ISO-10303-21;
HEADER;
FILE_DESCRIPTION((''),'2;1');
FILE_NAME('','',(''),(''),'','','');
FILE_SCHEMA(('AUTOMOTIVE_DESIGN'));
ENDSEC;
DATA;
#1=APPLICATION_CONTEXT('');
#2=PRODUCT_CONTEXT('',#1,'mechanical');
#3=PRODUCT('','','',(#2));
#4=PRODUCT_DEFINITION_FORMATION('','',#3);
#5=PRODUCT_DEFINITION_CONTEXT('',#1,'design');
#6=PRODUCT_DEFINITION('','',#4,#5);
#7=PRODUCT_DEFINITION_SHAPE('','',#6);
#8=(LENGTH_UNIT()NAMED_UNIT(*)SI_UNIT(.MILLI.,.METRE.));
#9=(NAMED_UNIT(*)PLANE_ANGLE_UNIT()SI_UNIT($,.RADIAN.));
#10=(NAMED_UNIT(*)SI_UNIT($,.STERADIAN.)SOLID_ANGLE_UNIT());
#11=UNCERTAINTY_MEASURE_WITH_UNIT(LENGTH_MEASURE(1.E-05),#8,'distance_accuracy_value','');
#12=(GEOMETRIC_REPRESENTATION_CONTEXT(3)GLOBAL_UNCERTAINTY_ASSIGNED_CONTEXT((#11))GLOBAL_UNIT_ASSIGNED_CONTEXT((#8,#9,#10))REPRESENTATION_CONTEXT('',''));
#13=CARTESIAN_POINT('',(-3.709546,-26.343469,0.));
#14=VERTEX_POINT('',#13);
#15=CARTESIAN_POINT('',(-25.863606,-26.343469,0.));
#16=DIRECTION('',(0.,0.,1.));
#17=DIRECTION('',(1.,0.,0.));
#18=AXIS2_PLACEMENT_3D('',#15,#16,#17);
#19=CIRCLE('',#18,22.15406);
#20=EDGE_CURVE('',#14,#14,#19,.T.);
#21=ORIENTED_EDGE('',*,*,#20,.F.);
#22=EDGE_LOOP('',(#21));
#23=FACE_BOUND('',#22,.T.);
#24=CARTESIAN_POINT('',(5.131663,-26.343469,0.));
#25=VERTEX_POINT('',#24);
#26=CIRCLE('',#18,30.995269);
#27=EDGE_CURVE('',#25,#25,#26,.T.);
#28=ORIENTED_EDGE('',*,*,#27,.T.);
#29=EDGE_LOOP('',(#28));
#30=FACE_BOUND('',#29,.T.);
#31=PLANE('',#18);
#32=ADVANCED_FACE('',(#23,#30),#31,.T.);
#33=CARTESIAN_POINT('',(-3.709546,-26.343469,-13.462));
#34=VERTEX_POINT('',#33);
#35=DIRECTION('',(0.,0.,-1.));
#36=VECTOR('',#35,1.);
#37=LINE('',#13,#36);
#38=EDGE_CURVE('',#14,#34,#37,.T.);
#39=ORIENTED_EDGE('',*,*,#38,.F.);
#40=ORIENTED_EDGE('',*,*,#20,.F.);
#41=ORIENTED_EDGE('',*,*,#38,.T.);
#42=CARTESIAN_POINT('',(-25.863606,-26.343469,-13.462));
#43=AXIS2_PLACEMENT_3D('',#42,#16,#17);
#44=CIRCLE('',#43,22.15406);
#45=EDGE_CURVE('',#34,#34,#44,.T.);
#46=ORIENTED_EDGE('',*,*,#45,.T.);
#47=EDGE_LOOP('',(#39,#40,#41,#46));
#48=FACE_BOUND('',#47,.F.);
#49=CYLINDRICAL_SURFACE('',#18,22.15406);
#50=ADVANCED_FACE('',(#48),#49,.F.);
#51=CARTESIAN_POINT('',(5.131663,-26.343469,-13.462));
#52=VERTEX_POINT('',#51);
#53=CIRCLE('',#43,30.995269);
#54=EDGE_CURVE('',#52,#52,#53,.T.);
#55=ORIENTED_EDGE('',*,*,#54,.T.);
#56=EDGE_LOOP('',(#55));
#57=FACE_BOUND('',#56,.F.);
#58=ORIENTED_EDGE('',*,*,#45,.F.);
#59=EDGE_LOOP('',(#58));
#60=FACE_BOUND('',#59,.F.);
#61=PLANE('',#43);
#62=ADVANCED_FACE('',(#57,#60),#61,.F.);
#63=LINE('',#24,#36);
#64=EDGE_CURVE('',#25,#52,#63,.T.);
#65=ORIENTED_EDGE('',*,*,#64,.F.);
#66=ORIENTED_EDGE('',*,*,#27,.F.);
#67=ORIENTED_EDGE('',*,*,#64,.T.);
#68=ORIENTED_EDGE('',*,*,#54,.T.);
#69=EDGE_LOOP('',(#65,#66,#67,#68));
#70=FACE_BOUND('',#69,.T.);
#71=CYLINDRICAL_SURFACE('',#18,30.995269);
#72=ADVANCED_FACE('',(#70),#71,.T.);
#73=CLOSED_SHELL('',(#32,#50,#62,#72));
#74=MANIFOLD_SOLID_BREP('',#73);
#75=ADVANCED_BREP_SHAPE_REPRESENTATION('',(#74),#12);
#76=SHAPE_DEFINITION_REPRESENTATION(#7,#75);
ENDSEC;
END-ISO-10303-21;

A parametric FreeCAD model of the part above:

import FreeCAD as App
import Part
import Sketcher

V = App.Vector
Q = App.Units.Quantity

doc = App.newDocument("Part")
body = doc.addObject("PartDesign::Body", "Body")

sketch1 = body.newObject("Sketcher::SketchObject", "Sketch")
sketch1.AttachmentSupport = (doc.getObject("XY_Plane"), [""])
sketch1.MapMode = "FlatFace"
sketch1.addGeometry([
    Part.Circle(V(-26, -26, 0), V(0, 0, 1), 31),
    Part.Circle(V(-26, -26, 0), V(0, 0, 1), 22),
], False)
sketch1.addConstraint([
    Sketcher.Constraint("Coincident", 1, 3, 0, 3),
    Sketcher.Constraint("Diameter", 1, Q("44.30812 mm")),
    Sketcher.Constraint("Diameter", 0, Q("61.990538 mm")),
    Sketcher.Constraint("DistanceY", 0, 3, -1, 1, Q("26.343469 mm")),
    Sketcher.Constraint("DistanceX", 0, 3, -1, 1, Q("25.863606 mm")),
])
pad1 = body.newObject("PartDesign::Pad", "Pad")
pad1.Profile = sketch1
pad1.Length = Q("0.53 in")
pad1.Reversed = True

doc.recompute()
